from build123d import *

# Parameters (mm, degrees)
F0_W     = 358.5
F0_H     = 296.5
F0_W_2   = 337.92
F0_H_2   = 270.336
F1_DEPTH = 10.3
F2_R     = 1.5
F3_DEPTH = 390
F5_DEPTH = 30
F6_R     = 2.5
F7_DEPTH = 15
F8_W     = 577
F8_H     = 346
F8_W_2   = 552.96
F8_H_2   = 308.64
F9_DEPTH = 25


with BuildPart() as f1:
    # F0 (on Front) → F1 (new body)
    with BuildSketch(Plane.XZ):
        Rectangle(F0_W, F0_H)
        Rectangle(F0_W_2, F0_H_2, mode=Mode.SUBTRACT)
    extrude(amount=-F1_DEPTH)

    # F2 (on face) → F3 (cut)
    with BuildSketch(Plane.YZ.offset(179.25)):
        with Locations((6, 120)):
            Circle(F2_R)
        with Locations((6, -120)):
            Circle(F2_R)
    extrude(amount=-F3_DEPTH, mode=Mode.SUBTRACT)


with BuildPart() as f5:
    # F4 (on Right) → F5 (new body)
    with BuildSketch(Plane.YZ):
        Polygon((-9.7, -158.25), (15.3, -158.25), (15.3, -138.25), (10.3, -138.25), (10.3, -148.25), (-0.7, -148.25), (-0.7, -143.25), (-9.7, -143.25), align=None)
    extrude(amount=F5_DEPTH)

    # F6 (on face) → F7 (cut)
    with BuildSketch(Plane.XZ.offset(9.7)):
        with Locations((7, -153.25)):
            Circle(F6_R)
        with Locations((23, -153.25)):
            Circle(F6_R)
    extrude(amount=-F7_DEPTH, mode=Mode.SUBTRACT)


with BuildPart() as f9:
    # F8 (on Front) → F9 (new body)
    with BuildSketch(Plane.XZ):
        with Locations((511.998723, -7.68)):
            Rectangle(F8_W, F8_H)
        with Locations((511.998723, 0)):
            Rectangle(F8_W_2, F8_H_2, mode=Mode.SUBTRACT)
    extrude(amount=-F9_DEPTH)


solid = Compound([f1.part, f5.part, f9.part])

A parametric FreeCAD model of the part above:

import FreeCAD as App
import Part
import Sketcher
from FreeCAD import Vector
Q = App.Units.Quantity

doc = App.newDocument("Part")
params = doc.addObject("Spreadsheet::Sheet", "Params")
for row, (alias, value) in enumerate([
    ("sketch1_width", "358.5 mm"),
    ("sketch1_height", "296.5 mm"),
    ("sketch1_width2", "337.92 mm"),
    ("pad1_length", "10.3 mm"),
    ("sketch2_diameter", "3 mm"),
    ("pocket1_length", "390 mm"),
    ("sketch3_width", "25 mm"),
    ("sketch3_width2", "5 mm"),
    ("sketch3_width3", "11 mm"),
    ("sketch3_height", "20 mm"),
    ("sketch3_height2", "10 mm"),
    ("pad2_length", "30 mm"),
    ("sketch4_diameter", "5 mm"),
    ("pocket2_length", "15 mm"),
    ("sketch5_width", "577 mm"),
    ("sketch5_height", "346 mm"),
    ("sketch5_width2", "552.96 mm"),
    ("sketch5_height2", "308.64 mm"),
    ("pad3_length", "25 mm"),
], start=1):
    params.set(f"A{row}", alias)
    params.set(f"B{row}", "=" + value)
    params.setAlias(f"B{row}", alias)

body = doc.addObject("PartDesign::Body", "Body")

# Sketch on XZ plane
sketch1 = body.newObject("Sketcher::SketchObject", "Sketch")
sketch1.AttachmentSupport = (doc.getObject("XZ_Plane"), [""])
sketch1.MapMode = "FlatFace"
sketch1.addGeometry(Part.LineSegment(Vector(-179.25, 148.25, 0), Vector(-179.25, -148.25, 0)), False)
sketch1.addGeometry(Part.LineSegment(Vector(-179.25, -148.25, 0), Vector(179.25, -148.25, 0)), False)
sketch1.addGeometry(Part.LineSegment(Vector(179.25, -148.25, 0), Vector(179.25, 148.25, 0)), False)
sketch1.addGeometry(Part.LineSegment(Vector(179.25, 148.25, 0), Vector(-179.25, 148.25, 0)), False)
sketch1.addGeometry(Part.LineSegment(Vector(168.96, -135.168, 0), Vector(-168.96, -135.168, 0)), False)
sketch1.addGeometry(Part.LineSegment(Vector(-168.96, -135.168, 0), Vector(-168.96, 135.168, 0)), False)
sketch1.addGeometry(Part.LineSegment(Vector(-168.96, 135.168, 0), Vector(168.96, 135.168, 0)), False)
sketch1.addGeometry(Part.LineSegment(Vector(168.96, 135.168, 0), Vector(168.96, -135.168, 0)), False)
sketch1.addConstraint(Sketcher.Constraint("Coincident", 0, 2, 1, 1))
sketch1.addConstraint(Sketcher.Constraint("Coincident", 1, 2, 2, 1))
sketch1.addConstraint(Sketcher.Constraint("Coincident", 2, 2, 3, 1))
sketch1.addConstraint(Sketcher.Constraint("Coincident", 3, 2, 0, 1))
sketch1.addConstraint(Sketcher.Constraint("Coincident", 4, 2, 5, 1))
sketch1.addConstraint(Sketcher.Constraint("Coincident", 5, 2, 6, 1))
sketch1.addConstraint(Sketcher.Constraint("Coincident", 6, 2, 7, 1))
sketch1.addConstraint(Sketcher.Constraint("Coincident", 7, 2, 4, 1))
sketch1.addConstraint(Sketcher.Constraint("Vertical", 0))
sketch1.addConstraint(Sketcher.Constraint("Horizontal", 1))
sketch1.addConstraint(Sketcher.Constraint("Vertical", 2))
sketch1.addConstraint(Sketcher.Constraint("Horizontal", 3))
sketch1.addConstraint(Sketcher.Constraint("Horizontal", 4))
sketch1.addConstraint(Sketcher.Constraint("Vertical", 5))
sketch1.addConstraint(Sketcher.Constraint("Horizontal", 6))
sketch1.addConstraint(Sketcher.Constraint("Vertical", 7))
sketch1.addConstraint(Sketcher.Constraint("Symmetric", 0, 2, 2, 2, -1, 1))
sketch1.addConstraint(Sketcher.Constraint("Symmetric", 4, 2, 6, 2, -1, 1))
sketch1.addConstraint(Sketcher.Constraint("DistanceX", 1, 1, 1, 2, Q("358.5 mm")))
sketch1.addConstraint(Sketcher.Constraint("DistanceY", 0, 2, 0, 1, Q("296.5 mm")))
sketch1.addConstraint(Sketcher.Constraint("DistanceX", 4, 2, 4, 1, Q("337.92 mm")))
sketch1.addConstraint(Sketcher.Constraint("DistanceY", 5, 1, 5, 2, Q("270.336 mm")))
sketch1.setExpression("Constraints[18]", "Params.sketch1_width")
sketch1.setExpression("Constraints[19]", "Params.sketch1_height")
sketch1.setExpression("Constraints[20]", "Params.sketch1_width2")
pad1 = body.newObject("PartDesign::Pad", "Pad")
pad1.Profile = sketch1
pad1.setExpression("Length", "Params.pad1_length")
pad1.Reversed = True

# Sketch on YZ plane
sketch2 = body.newObject("Sketcher::SketchObject", "Sketch001")
sketch2.AttachmentSupport = (doc.getObject("YZ_Plane"), [""])
sketch2.MapMode = "FlatFace"
sketch2.AttachmentOffset = App.Placement(Vector(0, 0, 179.25), App.Rotation())
sketch2.addGeometry(Part.Circle(Vector(6, 120, 0), Vector(0, 0, 1), 1.5), False)
sketch2.addGeometry(Part.Circle(Vector(6, -120, 0), Vector(0, 0, 1), 1.5), False)
sketch2.addConstraint(Sketcher.Constraint("Equal", 0, 1))
sketch2.addConstraint(Sketcher.Constraint("Symmetric", 0, 3, 1, 3, -1))
sketch2.addConstraint(Sketcher.Constraint("Diameter", 0, Q("3 mm")))
sketch2.addConstraint(Sketcher.Constraint("DistanceX", -1, 1, 0, 3, Q("6 mm")))
sketch2.addConstraint(Sketcher.Constraint("DistanceY", -1, 1, 0, 3, Q("120 mm")))
sketch2.setExpression("Constraints[2]", "Params.sketch2_diameter")
pocket1 = body.newObject("PartDesign::Pocket", "Pocket")
pocket1.Profile = sketch2
pocket1.setExpression("Length", "Params.pocket1_length")
body2 = doc.addObject("PartDesign::Body", "Body001")

# Sketch on YZ plane
sketch3 = body2.newObject("Sketcher::SketchObject", "Sketch002")
sketch3.AttachmentSupport = (doc.getObject("YZ_Plane001"), [""])
sketch3.MapMode = "FlatFace"
sketch3.addGeometry(Part.LineSegment(Vector(-9.7, -158.25, 0), Vector(15.3, -158.25, 0)), False)
sketch3.addGeometry(Part.LineSegment(Vector(15.3, -158.25, 0), Vector(15.3, -138.25, 0)), False)
sketch3.addGeometry(Part.LineSegment(Vector(15.3, -138.25, 0), Vector(10.3, -138.25, 0)), False)
sketch3.addGeometry(Part.LineSegment(Vector(10.3, -138.25, 0), Vector(10.3, -148.25, 0)), False)
sketch3.addGeometry(Part.LineSegment(Vector(10.3, -148.25, 0), Vector(-0.7, -148.25, 0)), False)
sketch3.addGeometry(Part.LineSegment(Vector(-0.7, -148.25, 0), Vector(-0.7, -143.25, 0)), False)
sketch3.addGeometry(Part.LineSegment(Vector(-0.7, -143.25, 0), Vector(-9.7, -143.25, 0)), False)
sketch3.addGeometry(Part.LineSegment(Vector(-9.7, -143.25, 0), Vector(-9.7, -158.25, 0)), False)
sketch3.addConstraint(Sketcher.Constraint("Coincident", 0, 2, 1, 1))
sketch3.addConstraint(Sketcher.Constraint("Coincident", 1, 2, 2, 1))
sketch3.addConstraint(Sketcher.Constraint("Coincident", 2, 2, 3, 1))
sketch3.addConstraint(Sketcher.Constraint("Coincident", 3, 2, 4, 1))
sketch3.addConstraint(Sketcher.Constraint("Coincident", 4, 2, 5, 1))
sketch3.addConstraint(Sketcher.Constraint("Coincident", 5, 2, 6, 1))
sketch3.addConstraint(Sketcher.Constraint("Coincident", 6, 2, 7, 1))
sketch3.addConstraint(Sketcher.Constraint("Coincident", 7, 2, 0, 1))
sketch3.addConstraint(Sketcher.Constraint("Horizontal", 0))
sketch3.addConstraint(Sketcher.Constraint("Vertical", 1))
sketch3.addConstraint(Sketcher.Constraint("Horizontal", 2))
sketch3.addConstraint(Sketcher.Constraint("Vertical", 3))
sketch3.addConstraint(Sketcher.Constraint("Horizontal", 4))
sketch3.addConstraint(Sketcher.Constraint("Vertical", 5))
sketch3.addConstraint(Sketcher.Constraint("Horizontal", 6))
sketch3.addConstraint(Sketcher.Constraint("Vertical", 7))
sketch3.addConstraint(Sketcher.Constraint("Equal", 2, 5))
sketch3.addConstraint(Sketcher.Constraint("DistanceX", 0, 1, 0, 2, Q("25 mm")))
sketch3.addConstraint(Sketcher.Constraint("DistanceX", 2, 2, 2, 1, Q("5 mm")))
sketch3.addConstraint(Sketcher.Constraint("DistanceX", 4, 2, 4, 1, Q("11 mm")))
sketch3.addConstraint(Sketcher.Constraint("DistanceY", 1, 1, 1, 2, Q("20 mm")))
sketch3.addConstraint(Sketcher.Constraint("DistanceY", 3, 2, 3, 1, Q("10 mm")))
sketch3.addConstraint(Sketcher.Constraint("DistanceX", -1, 1, 0, 2, Q("15.3 mm")))
sketch3.addConstraint(Sketcher.Constraint("DistanceY", 0, 2, -1, 1, Q("158.25 mm")))
sketch3.setExpression("Constraints[17]", "Params.sketch3_width")
sketch3.setExpression("Constraints[18]", "Params.sketch3_width2")
sketch3.setExpression("Constraints[19]", "Params.sketch3_width3")
sketch3.setExpression("Constraints[20]", "Params.sketch3_height")
sketch3.setExpression("Constraints[21]", "Params.sketch3_height2")
pad2 = body2.newObject("PartDesign::Pad", "Pad001")
pad2.Profile = sketch3
pad2.setExpression("Length", "Params.pad2_length")

# Sketch on XZ plane
sketch4 = body2.newObject("Sketcher::SketchObject", "Sketch003")
sketch4.AttachmentSupport = (doc.getObject("XZ_Plane001"), [""])
sketch4.MapMode = "FlatFace"
sketch4.AttachmentOffset = App.Placement(Vector(0, 0, 9.7), App.Rotation())
sketch4.addGeometry(Part.Circle(Vector(7, -153.25, 0), Vector(0, 0, 1), 2.5), False)
sketch4.addGeometry(Part.Circle(Vector(23, -153.25, 0), Vector(0, 0, 1), 2.5), False)
sketch4.addConstraint(Sketcher.Constraint("Equal", 0, 1))
sketch4.addConstraint(Sketcher.Constraint("Horizontal", 0, 3, 1, 3))
sketch4.addConstraint(Sketcher.Constraint("Diameter", 0, Q("5 mm")))
sketch4.addConstraint(Sketcher.Constraint("DistanceX", -1, 1, 0, 3, Q("7 mm")))
sketch4.addConstraint(Sketcher.Constraint("DistanceX", -1, 1, 1, 3, Q("23 mm")))
sketch4.addConstraint(Sketcher.Constraint("DistanceY", 0, 3, -1, 1, Q("153.25 mm")))
sketch4.setExpression("Constraints[2]", "Params.sketch4_diameter")
pocket2 = body2.newObject("PartDesign::Pocket", "Pocket001")
pocket2.Profile = sketch4
pocket2.setExpression("Length", "Params.pocket2_length")
body3 = doc.addObject("PartDesign::Body", "Body002")

# Sketch on XZ plane
sketch5 = body3.newObject("Sketcher::SketchObject", "Sketch004")
sketch5.AttachmentSupport = (doc.getObject("XZ_Plane002"), [""])
sketch5.MapMode = "FlatFace"
sketch5.addGeometry(Part.LineSegment(Vector(223.498723, 165.32, 0), Vector(223.498723, -180.68, 0)), False)
sketch5.addGeometry(Part.LineSegment(Vector(223.498723, -180.68, 0), Vector(800.498723, -180.68, 0)), False)
sketch5.addGeometry(Part.LineSegment(Vector(800.498723, -180.68, 0), Vector(800.498723, 165.32, 0)), False)
sketch5.addGeometry(Part.LineSegment(Vector(800.498723, 165.32, 0), Vector(223.498723, 165.32, 0)), False)
sketch5.addGeometry(Part.LineSegment(Vector(788.478723, -154.32, 0), Vector(235.518723, -154.32, 0)), False)
sketch5.addGeometry(Part.LineSegment(Vector(235.518723, -154.32, 0), Vector(235.518723, 154.32, 0)), False)
sketch5.addGeometry(Part.LineSegment(Vector(235.518723, 154.32, 0), Vector(788.478723, 154.32, 0)), False)
sketch5.addGeometry(Part.LineSegment(Vector(788.478723, 154.32, 0), Vector(788.478723, -154.32, 0)), False)
sketch5.addConstraint(Sketcher.Constraint("Coincident", 0, 2, 1, 1))
sketch5.addConstraint(Sketcher.Constraint("Coincident", 1, 2, 2, 1))
sketch5.addConstraint(Sketcher.Constraint("Coincident", 2, 2, 3, 1))
sketch5.addConstraint(Sketcher.Constraint("Coincident", 3, 2, 0, 1))
sketch5.addConstraint(Sketcher.Constraint("Coincident", 4, 2, 5, 1))
sketch5.addConstraint(Sketcher.Constraint("Coincident", 5, 2, 6, 1))
sketch5.addConstraint(Sketcher.Constraint("Coincident", 6, 2, 7, 1))
sketch5.addConstraint(Sketcher.Constraint("Coincident", 7, 2, 4, 1))
sketch5.addConstraint(Sketcher.Constraint("Vertical", 0))
sketch5.addConstraint(Sketcher.Constraint("Horizontal", 1))
sketch5.addConstraint(Sketcher.Constraint("Vertical", 2))
sketch5.addConstraint(Sketcher.Constraint("Horizontal", 3))
sketch5.addConstraint(Sketcher.Constraint("Horizontal", 4))
sketch5.addConstraint(Sketcher.Constraint("Vertical", 5))
sketch5.addConstraint(Sketcher.Constraint("Horizontal", 6))
sketch5.addConstraint(Sketcher.Constraint("Vertical", 7))
sketch5.addConstraint(Sketcher.Constraint("DistanceX", 1, 1, 1, 2, Q("577 mm")))
sketch5.addConstraint(Sketcher.Constraint("DistanceY", 0, 2, 0, 1, Q("346 mm")))
sketch5.addConstraint(Sketcher.Constraint("DistanceY", 5, 2, 3, 2, Q("11 mm")))
sketch5.addConstraint(Sketcher.Constraint("DistanceX", 4, 2, 4, 1, Q("552.96 mm")))
sketch5.addConstraint(Sketcher.Constraint("DistanceY", 5, 1, 5, 2, Q("308.64 mm")))
sketch5.addConstraint(Sketcher.Constraint("DistanceY", 0, 2, -1, 1, Q("180.68 mm")))
sketch5.addConstraint(Sketcher.Constraint("DistanceX", 0, 2, 4, 2, Q("12.02 mm")))
sketch5.addConstraint(Sketcher.Constraint("DistanceX", -1, 1, 0, 2, Q("223.498723 mm")))
sketch5.setExpression("Constraints[16]", "Params.sketch5_width")
sketch5.setExpression("Constraints[17]", "Params.sketch5_height")
sketch5.setExpression("Constraints[19]", "Params.sketch5_width2")
sketch5.setExpression("Constraints[20]", "Params.sketch5_height2")
pad3 = body3.newObject("PartDesign::Pad", "Pad002")
pad3.Profile = sketch5
pad3.setExpression("Length", "Params.pad3_length")
pad3.Reversed = True

doc.recompute()
